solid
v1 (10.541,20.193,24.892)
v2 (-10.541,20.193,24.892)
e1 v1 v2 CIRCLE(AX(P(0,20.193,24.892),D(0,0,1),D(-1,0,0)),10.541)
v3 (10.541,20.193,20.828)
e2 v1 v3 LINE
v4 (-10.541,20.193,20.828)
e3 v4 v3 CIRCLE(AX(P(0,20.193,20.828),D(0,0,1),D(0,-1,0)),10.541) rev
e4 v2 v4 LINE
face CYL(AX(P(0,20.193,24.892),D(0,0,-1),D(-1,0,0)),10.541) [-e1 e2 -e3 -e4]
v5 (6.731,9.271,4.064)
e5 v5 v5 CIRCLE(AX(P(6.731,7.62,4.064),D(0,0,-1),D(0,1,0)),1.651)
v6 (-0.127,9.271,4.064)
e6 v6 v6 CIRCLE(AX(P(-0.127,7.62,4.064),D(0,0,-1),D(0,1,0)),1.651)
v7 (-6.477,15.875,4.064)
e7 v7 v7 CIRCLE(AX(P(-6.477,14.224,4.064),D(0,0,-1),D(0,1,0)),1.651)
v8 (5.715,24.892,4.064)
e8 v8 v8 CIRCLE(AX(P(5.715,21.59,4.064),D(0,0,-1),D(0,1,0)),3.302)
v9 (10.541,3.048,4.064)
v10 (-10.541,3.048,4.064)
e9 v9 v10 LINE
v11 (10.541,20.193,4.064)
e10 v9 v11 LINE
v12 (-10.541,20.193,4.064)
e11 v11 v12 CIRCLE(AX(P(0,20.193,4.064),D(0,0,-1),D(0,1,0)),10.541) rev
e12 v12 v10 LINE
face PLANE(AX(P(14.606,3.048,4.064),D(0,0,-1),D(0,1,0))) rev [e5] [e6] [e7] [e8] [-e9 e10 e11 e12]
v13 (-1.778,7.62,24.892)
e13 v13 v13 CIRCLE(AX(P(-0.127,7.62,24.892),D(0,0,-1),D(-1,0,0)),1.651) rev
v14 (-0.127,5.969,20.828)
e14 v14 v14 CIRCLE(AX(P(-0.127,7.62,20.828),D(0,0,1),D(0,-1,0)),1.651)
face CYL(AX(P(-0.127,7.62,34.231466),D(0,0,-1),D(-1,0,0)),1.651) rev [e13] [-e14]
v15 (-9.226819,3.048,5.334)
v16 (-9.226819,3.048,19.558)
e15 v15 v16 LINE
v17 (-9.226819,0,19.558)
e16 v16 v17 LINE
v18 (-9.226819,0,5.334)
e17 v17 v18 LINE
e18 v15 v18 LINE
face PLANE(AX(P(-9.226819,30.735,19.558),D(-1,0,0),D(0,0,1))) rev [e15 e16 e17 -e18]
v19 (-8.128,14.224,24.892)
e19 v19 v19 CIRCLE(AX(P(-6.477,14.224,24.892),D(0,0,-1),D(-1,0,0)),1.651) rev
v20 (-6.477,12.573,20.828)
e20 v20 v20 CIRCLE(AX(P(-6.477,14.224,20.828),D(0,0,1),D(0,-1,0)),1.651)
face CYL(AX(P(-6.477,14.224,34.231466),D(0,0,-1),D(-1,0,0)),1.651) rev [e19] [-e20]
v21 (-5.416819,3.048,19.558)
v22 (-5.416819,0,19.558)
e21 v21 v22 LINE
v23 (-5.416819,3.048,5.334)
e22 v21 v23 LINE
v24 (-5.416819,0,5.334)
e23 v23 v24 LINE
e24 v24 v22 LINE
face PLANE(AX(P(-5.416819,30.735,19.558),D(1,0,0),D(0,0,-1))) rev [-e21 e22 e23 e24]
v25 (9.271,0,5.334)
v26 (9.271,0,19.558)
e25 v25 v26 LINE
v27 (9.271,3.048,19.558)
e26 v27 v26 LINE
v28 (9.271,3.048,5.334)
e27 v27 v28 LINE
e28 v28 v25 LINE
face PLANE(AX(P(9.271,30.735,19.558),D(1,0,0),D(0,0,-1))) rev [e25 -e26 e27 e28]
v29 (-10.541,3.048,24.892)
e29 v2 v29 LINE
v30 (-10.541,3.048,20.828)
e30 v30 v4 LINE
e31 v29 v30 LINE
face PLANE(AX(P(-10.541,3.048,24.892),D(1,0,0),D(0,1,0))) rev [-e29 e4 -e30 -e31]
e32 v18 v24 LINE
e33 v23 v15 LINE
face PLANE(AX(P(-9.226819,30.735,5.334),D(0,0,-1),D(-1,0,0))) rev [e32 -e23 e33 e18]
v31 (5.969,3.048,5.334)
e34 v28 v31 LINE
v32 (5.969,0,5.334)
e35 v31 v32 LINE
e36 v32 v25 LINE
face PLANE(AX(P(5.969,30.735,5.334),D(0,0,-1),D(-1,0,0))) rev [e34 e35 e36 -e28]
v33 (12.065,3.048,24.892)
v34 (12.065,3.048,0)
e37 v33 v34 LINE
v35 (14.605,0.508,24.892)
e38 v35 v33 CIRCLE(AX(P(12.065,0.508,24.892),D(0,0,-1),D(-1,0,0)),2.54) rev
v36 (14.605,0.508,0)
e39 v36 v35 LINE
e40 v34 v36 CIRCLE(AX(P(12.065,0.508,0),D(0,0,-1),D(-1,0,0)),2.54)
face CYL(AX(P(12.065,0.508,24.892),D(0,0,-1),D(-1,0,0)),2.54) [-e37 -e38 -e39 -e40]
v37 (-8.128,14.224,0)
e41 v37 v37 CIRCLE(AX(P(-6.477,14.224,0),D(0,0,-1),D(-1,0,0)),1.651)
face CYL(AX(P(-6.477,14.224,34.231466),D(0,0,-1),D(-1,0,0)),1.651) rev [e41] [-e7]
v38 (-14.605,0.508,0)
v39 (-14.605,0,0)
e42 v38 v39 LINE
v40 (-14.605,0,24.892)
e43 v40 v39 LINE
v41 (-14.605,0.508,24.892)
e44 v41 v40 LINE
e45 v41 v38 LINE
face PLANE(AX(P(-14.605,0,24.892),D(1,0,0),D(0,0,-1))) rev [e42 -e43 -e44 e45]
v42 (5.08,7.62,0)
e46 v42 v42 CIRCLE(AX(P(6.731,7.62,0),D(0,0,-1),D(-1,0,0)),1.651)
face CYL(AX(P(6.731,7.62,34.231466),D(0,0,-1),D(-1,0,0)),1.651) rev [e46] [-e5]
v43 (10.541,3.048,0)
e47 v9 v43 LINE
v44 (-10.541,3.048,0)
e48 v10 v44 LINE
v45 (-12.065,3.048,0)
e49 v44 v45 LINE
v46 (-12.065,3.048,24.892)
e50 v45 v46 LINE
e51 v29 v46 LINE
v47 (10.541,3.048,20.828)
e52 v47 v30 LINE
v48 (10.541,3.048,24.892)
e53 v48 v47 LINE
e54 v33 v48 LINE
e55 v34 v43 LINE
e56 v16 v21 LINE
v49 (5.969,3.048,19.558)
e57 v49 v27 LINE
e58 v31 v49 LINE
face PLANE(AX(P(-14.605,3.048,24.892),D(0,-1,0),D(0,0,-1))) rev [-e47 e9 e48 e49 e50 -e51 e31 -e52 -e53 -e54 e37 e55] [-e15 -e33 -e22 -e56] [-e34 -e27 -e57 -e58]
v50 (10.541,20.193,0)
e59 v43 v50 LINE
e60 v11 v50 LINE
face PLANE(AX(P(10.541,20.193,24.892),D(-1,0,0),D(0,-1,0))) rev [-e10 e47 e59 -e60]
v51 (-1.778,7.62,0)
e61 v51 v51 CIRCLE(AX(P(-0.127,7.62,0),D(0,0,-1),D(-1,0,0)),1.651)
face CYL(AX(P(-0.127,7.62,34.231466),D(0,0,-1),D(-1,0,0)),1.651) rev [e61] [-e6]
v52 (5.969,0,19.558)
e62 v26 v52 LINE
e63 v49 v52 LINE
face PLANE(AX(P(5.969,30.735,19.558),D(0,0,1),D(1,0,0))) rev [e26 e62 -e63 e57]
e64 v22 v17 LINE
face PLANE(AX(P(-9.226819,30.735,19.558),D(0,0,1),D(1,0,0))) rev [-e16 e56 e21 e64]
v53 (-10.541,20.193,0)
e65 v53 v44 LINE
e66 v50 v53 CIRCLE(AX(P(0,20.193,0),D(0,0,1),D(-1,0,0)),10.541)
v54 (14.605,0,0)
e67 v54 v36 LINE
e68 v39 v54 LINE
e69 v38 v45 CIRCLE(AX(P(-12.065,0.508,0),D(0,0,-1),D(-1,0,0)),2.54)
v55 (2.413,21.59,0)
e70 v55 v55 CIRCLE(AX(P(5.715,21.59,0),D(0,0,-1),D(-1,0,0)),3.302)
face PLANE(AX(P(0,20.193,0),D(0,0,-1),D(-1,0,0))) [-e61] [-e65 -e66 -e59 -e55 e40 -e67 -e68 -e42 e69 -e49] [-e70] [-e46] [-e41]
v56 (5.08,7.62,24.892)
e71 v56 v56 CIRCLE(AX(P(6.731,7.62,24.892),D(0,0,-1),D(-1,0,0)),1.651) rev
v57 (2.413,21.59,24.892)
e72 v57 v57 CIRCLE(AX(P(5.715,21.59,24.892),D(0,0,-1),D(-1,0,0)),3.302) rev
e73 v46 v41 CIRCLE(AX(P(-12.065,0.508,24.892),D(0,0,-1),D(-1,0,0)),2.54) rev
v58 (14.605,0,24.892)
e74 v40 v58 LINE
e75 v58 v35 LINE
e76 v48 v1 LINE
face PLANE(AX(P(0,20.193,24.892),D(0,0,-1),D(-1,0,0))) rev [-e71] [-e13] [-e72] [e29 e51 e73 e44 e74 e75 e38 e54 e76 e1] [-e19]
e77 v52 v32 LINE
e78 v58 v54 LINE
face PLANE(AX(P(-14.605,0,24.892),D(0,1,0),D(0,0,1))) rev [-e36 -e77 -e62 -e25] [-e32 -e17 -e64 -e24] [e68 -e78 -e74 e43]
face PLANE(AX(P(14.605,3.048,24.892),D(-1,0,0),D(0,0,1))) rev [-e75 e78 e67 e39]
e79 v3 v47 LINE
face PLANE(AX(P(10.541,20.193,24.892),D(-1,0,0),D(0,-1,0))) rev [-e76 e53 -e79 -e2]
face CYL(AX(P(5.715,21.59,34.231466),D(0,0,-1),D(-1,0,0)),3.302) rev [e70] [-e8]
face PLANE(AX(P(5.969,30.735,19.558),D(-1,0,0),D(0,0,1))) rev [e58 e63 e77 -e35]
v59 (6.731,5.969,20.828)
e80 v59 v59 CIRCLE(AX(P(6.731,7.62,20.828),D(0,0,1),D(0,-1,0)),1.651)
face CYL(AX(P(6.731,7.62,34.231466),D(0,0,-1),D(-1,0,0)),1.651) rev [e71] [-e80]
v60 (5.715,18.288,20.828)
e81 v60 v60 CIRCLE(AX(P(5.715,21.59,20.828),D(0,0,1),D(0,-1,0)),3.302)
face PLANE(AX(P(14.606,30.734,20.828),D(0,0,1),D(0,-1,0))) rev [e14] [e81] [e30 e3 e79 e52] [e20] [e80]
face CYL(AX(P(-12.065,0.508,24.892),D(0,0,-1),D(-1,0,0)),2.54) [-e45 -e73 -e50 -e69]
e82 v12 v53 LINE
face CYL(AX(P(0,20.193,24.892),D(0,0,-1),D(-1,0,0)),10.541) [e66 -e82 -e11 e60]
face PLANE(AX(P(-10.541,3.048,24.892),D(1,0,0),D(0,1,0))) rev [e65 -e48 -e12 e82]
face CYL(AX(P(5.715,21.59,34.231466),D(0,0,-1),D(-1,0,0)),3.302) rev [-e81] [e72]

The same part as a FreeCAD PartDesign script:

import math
import FreeCAD as App
import Part
import Sketcher
Q = App.Units.Quantity


def edges_at(feature, points):
    """Names of the edges that pass closest to the given points."""
    edges = feature.Shape.Edges
    near = lambda p: min(range(len(edges)), key=lambda i: edges[i].distToShape(Part.Vertex(*p))[0])
    return sorted({f"Edge{near(p) + 1}" for p in points})


def add_polygon(sketch, points):
    """Adds a closed chain of lines whose ends are joined by coincident constraints."""
    first, n = sketch.GeometryCount, len(points)
    for a, b in zip(points, points[1:] + points[:1]):
        sketch.addGeometry(Part.LineSegment(App.Vector(*a, 0), App.Vector(*b, 0)), False)
    for i in range(n):
        sketch.addConstraint(Sketcher.Constraint("Coincident", first + i, 2, first + (i + 1) % n, 1))

doc = App.newDocument("Part")
body = doc.addObject("PartDesign::Body", "Body")

# Sketch on XY plane
sketch1 = body.newObject("Sketcher::SketchObject", "Sketch")
sketch1.AttachmentSupport = (doc.getObject("XY_Plane"), [""])
sketch1.MapMode = "FlatFace"
sketch1.addGeometry([
    Part.LineSegment(App.Vector(-14.6, 0, 0), App.Vector(14.6, 0, 0)),  # 0
    Part.LineSegment(App.Vector(14.6, 0, 0), App.Vector(14.6, 3, 0)),  # 1
    Part.LineSegment(App.Vector(14.6, 3, 0), App.Vector(10.5, 3, 0)),  # 2
    Part.LineSegment(App.Vector(10.5, 3, 0), App.Vector(10.5, 20.2, 0)),  # 3
    Part.ArcOfCircle(Part.Circle(App.Vector(0, 20.2, 0), App.Vector(0, 0, 1), 10.5), math.radians(0), math.radians(180)),  # 4
    Part.LineSegment(App.Vector(-10.5, 20.2, 0), App.Vector(-10.5, 3, 0)),  # 5
    Part.LineSegment(App.Vector(-10.5, 3, 0), App.Vector(-14.6, 3, 0)),  # 6
    Part.LineSegment(App.Vector(-14.6, 3, 0), App.Vector(-14.6, 0, 0)),  # 7
], False)
sketch1.addConstraint([
    Sketcher.Constraint("Coincident", 0, 2, 1, 1),
    Sketcher.Constraint("Coincident", 1, 2, 2, 1),
    Sketcher.Constraint("Coincident", 2, 2, 3, 1),
    Sketcher.Constraint("Tangent", 3, 2, 4, 1),
    Sketcher.Constraint("Tangent", 4, 2, 5, 1),
    Sketcher.Constraint("Coincident", 5, 2, 6, 1),
    Sketcher.Constraint("Coincident", 6, 2, 7, 1),
    Sketcher.Constraint("Coincident", 7, 2, 0, 1),
    Sketcher.Constraint("Horizontal", 0),
    Sketcher.Constraint("Vertical", 1),
    Sketcher.Constraint("Horizontal", 2),
    Sketcher.Constraint("Vertical", 3),
    Sketcher.Constraint("Vertical", 5),
    Sketcher.Constraint("Horizontal", 6),
    Sketcher.Constraint("Vertical", 7),
    Sketcher.Constraint("Symmetric", 0, 2, 7, 2, -1, 1),
    Sketcher.Constraint("Symmetric", 2, 2, 5, 2, -2),
    Sketcher.Constraint("Radius", 4, Q("0.415 in")),
    Sketcher.Constraint("DistanceX", 0, 1, 0, 2, Q("1.15 in")),
    Sketcher.Constraint("DistanceY", 1, 1, 1, 2, Q("0.12 in")),
    Sketcher.Constraint("DistanceY", 3, 1, 3, 2, Q("0.675 in")),
])
pad1 = body.newObject("PartDesign::Pad", "Pad")
pad1.Profile = sketch1
pad1.Length = Q("0.98 in")

# Sketch on YZ plane
sketch2 = body.newObject("Sketcher::SketchObject", "Sketch001")
sketch2.AttachmentSupport = (doc.getObject("YZ_Plane"), [""])
sketch2.MapMode = "FlatFace"
sketch2.AttachmentOffset = App.Placement(App.Vector(0, 0, -0.415 * 25.4), App.Rotation())
add_polygon(sketch2, [(31, 4), (3, 4), (3, 21), (31, 21)])  # lines 0-3
sketch2.addConstraint([
    Sketcher.Constraint("Horizontal", 0),
    Sketcher.Constraint("Vertical", 1),
    Sketcher.Constraint("Horizontal", 2),
    Sketcher.Constraint("Vertical", 3),
    Sketcher.Constraint("DistanceX", 0, 2, 0, 1, Q("1.09 in")),
    Sketcher.Constraint("DistanceY", 1, 1, 1, 2, Q("0.66 in")),
    Sketcher.Constraint("DistanceX", -1, 1, 0, 2, Q("0.12 in")),
    Sketcher.Constraint("DistanceY", -1, 1, 0, 2, Q("0.16 in")),
])
pocket1 = body.newObject("PartDesign::Pocket", "Pocket")
pocket1.Profile = sketch2
pocket1.Type = "UpToFirst"
pocket1.Reversed = True

# Sketch on XY plane
sketch3 = body.newObject("Sketcher::SketchObject", "Sketch002")
sketch3.AttachmentSupport = (doc.getObject("XY_Plane"), [""])
sketch3.MapMode = "FlatFace"
sketch3.addGeometry([
    Part.Circle(App.Vector(5.7, 21.6, 0), App.Vector(0, 0, 1), 3.3),
    Part.Circle(App.Vector(6.7, 7.6, 0), App.Vector(0, 0, 1), 1.7),
    Part.Circle(App.Vector(-0.1, 7.6, 0), App.Vector(0, 0, 1), 1.7),
    Part.Circle(App.Vector(-6.5, 14.2, 0), App.Vector(0, 0, 1), 1.7),
], False)
sketch3.addConstraint([
    Sketcher.Constraint("Equal", 1, 2),
    Sketcher.Constraint("Equal", 2, 3),
    Sketcher.Constraint("Horizontal", 1, 3, 2, 3),
    Sketcher.Constraint("Diameter", 0, Q("0.26 in")),
    Sketcher.Constraint("Diameter", 1, Q("0.13 in")),
    Sketcher.Constraint("DistanceY", -1, 1, 1, 3, Q("0.3 in")),
    Sketcher.Constraint("DistanceY", -1, 1, 0, 3, Q("0.85 in")),
    Sketcher.Constraint("DistanceY", -1, 1, 3, 3, Q("0.56 in")),
    Sketcher.Constraint("DistanceX", 0, 3, 1, 3, Q("0.04 in")),
    Sketcher.Constraint("DistanceX", 2, 3, 1, 3, Q("0.27 in")),
    Sketcher.Constraint("DistanceX", 3, 3, 2, 3, Q("0.25 in")),
    Sketcher.Constraint("DistanceX", -1, 1, 0, 3, Q("0.225 in")),
])
pocket2 = body.newObject("PartDesign::Pocket", "Pocket001")
pocket2.Profile = sketch3
pocket2.Length = Q("0.98 in")
pocket2.Reversed = True

# Sketch on XZ plane
sketch4 = body.newObject("Sketcher::SketchObject", "Sketch003")
sketch4.AttachmentSupport = (doc.getObject("XZ_Plane"), [""])
sketch4.MapMode = "FlatFace"
add_polygon(sketch4, [(-9.2, 19.6), (-9.2, 5.3), (-5.4, 5.3), (-5.4, 19.6)])  # lines 0-3
sketch4.addConstraint([
    Sketcher.Constraint("Vertical", 0),
    Sketcher.Constraint("Horizontal", 1),
    Sketcher.Constraint("Vertical", 2),
    Sketcher.Constraint("Horizontal", 3),
    Sketcher.Constraint("DistanceX", 1, 1, 1, 2, Q("0.15 in")),
    Sketcher.Constraint("DistanceY", 0, 2, 0, 1, Q("0.56 in")),
    Sketcher.Constraint("DistanceY", -1, 1, 0, 2, Q("0.21 in")),
    Sketcher.Constraint("DistanceX", 0, 2, -1, 1, Q("9.226819 mm")),
])
pocket3 = body.newObject("PartDesign::Pocket", "Pocket002")
pocket3.Profile = sketch4
pocket3.Type = "UpToFirst"

# Sketch on XZ plane
sketch5 = body.newObject("Sketcher::SketchObject", "Sketch004")
sketch5.AttachmentSupport = (doc.getObject("XZ_Plane"), [""])
sketch5.MapMode = "FlatFace"
add_polygon(sketch5, [(6, 19.6), (6, 5.3), (9.3, 5.3), (9.3, 19.6)])  # lines 0-3
sketch5.addConstraint([
    Sketcher.Constraint("Vertical", 0),
    Sketcher.Constraint("Horizontal", 1),
    Sketcher.Constraint("Vertical", 2),
    Sketcher.Constraint("Horizontal", 3),
    Sketcher.Constraint("DistanceX", 1, 1, 1, 2, Q("0.13 in")),
    Sketcher.Constraint("DistanceY", 0, 2, 0, 1, Q("0.56 in")),
    Sketcher.Constraint("DistanceY", -1, 1, 0, 2, Q("0.21 in")),
    Sketcher.Constraint("DistanceX", -1, 1, 0, 2, Q("0.235 in")),
])
pocket4 = body.newObject("PartDesign::Pocket", "Pocket003")
pocket4.Profile = sketch5
pocket4.Type = "UpToFirst"
doc.recompute()

fillet = body.newObject("PartDesign::Fillet", "Fillet")
fillet.Base = (pocket4, edges_at(pocket4, [(-14.605, 3.048, 12.446), (14.605, 3.048, 12.446)]))
fillet.Radius = Q("0.1 in")

doc.recompute()
